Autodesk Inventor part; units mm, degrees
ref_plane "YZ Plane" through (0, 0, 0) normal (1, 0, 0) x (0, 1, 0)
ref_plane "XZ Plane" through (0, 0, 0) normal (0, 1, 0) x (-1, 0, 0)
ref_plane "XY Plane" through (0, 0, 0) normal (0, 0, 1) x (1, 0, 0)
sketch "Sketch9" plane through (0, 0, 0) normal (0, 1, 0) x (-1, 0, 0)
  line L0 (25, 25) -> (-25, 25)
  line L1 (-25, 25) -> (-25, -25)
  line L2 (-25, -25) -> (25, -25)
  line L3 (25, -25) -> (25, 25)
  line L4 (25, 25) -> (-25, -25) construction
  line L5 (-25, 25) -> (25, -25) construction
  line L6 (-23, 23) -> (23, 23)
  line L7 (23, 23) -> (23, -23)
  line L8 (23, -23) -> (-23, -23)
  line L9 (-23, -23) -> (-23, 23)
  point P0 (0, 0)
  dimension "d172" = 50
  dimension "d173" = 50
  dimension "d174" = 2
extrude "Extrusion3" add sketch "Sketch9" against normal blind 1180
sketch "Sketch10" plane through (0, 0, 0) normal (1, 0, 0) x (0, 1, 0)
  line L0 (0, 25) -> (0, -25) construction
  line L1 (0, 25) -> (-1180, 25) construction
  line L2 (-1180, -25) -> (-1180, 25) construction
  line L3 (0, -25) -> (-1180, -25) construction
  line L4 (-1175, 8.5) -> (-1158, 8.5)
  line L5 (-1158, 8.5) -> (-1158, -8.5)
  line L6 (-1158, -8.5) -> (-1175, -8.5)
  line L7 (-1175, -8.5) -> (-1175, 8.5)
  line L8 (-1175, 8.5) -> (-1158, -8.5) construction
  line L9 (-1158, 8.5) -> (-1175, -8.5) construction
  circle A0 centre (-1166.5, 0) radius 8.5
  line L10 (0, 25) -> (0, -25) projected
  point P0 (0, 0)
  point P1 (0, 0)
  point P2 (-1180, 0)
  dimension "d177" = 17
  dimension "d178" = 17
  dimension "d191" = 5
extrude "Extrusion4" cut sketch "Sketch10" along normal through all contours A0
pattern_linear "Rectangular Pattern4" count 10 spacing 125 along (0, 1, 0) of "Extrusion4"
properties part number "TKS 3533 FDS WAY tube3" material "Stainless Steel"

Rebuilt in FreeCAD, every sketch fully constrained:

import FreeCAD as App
import Part
import Sketcher


def add_polygon(sketch, points):
    """Adds a closed chain of lines whose ends are joined by coincident constraints."""
    first, n = sketch.GeometryCount, len(points)
    for a, b in zip(points, points[1:] + points[:1]):
        sketch.addGeometry(Part.LineSegment(App.Vector(*a, 0), App.Vector(*b, 0)), False)
    for i in range(n):
        sketch.addConstraint(Sketcher.Constraint("Coincident", first + i, 2, first + (i + 1) % n, 1))

doc = App.newDocument("Part")
params = doc.addObject("Spreadsheet::Sheet", "Params")
for row, (alias, value) in enumerate([
    ("sketch1_width", "50 mm"),
    ("pad1_length", "1180 mm"),
    ("sketch2_diameter", "17 mm"),
    ("linearpattern_pitch", "125 mm"),
], start=1):
    params.set(f"A{row}", alias)
    params.set(f"B{row}", "=" + value)
    params.setAlias(f"B{row}", alias)

body = doc.addObject("PartDesign::Body", "Body")

sketch1 = body.newObject("Sketcher::SketchObject", "Sketch")
sketch1.AttachmentSupport = (doc.getObject("XZ_Plane"), [""])
sketch1.MapMode = "FlatFace"
add_polygon(sketch1, [(-25, -25), (-25, 25), (25, 25), (25, -25)])
add_polygon(sketch1, [(23, -23), (23, 23), (-23, 23), (-23, -23)])
sketch1.addConstraint(Sketcher.Constraint("Vertical", 0))
sketch1.addConstraint(Sketcher.Constraint("Horizontal", 1))
sketch1.addConstraint(Sketcher.Constraint("Vertical", 2))
sketch1.addConstraint(Sketcher.Constraint("Horizontal", 3))
sketch1.addConstraint(Sketcher.Constraint("Vertical", 4))
sketch1.addConstraint(Sketcher.Constraint("Horizontal", 5))
sketch1.addConstraint(Sketcher.Constraint("Vertical", 6))
sketch1.addConstraint(Sketcher.Constraint("Horizontal", 7))
sketch1.addConstraint(Sketcher.Constraint("Symmetric", 0, 2, 2, 2, -1, 1))
sketch1.addConstraint(Sketcher.Constraint("Symmetric", 4, 2, 6, 2, -1, 1))
sketch1.addConstraint(Sketcher.Constraint("Equal", 3, 0))
sketch1.addConstraint(Sketcher.Constraint("Equal", 7, 4))
sketch1.addConstraint(Sketcher.Constraint("DistanceX", 1, 1, 1, 2, 50.0))
sketch1.addConstraint(Sketcher.Constraint("DistanceX", 4, 2, 1, 2, 2.0))
sketch1.setExpression("Constraints[20]", "Params.sketch1_width")
pad1 = body.newObject("PartDesign::Pad", "Pad")
pad1.Profile = sketch1
pad1.setExpression("Length", "Params.pad1_length")

sketch2 = body.newObject("Sketcher::SketchObject", "Sketch001")
sketch2.AttachmentSupport = (doc.getObject("YZ_Plane"), [""])
sketch2.MapMode = "FlatFace"
sketch2.addGeometry(Part.Circle(App.Vector(-1166, 0, 0), App.Vector(0, 0, 1), 8), False)
sketch2.addConstraint(Sketcher.Constraint("PointOnObject", 0, 3, -1))
sketch2.addConstraint(Sketcher.Constraint("Diameter", 0, 17.0))
sketch2.addConstraint(Sketcher.Constraint("DistanceX", 0, 3, -1, 1, 1166.5))
sketch2.setExpression("Constraints[1]", "Params.sketch2_diameter")
pocket1 = body.newObject("PartDesign::Pocket", "Pocket")
pocket1.Profile = sketch2
pocket1.Type = "ThroughAll"
pocket1.Reversed = True
doc.recompute()

linearpattern = body.newObject("PartDesign::LinearPattern", "LinearPattern")
linearpattern.Originals = [pocket1]
linearpattern.Direction = (doc.getObject("Y_Axis"), [""])
linearpattern.Mode = "offset"
linearpattern.setExpression("Offset", "Params.linearpattern_pitch")
linearpattern.Occurrences = 10
body.Tip = linearpattern

doc.recompute()
